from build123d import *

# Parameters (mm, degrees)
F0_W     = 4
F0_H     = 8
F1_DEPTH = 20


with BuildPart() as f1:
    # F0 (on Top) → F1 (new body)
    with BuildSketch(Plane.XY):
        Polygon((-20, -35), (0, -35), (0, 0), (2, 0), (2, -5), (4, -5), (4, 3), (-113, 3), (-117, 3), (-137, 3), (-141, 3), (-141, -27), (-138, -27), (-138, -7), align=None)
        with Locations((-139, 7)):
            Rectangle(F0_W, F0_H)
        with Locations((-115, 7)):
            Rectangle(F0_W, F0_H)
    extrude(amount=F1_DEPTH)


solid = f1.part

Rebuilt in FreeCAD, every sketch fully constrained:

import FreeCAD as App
import Part
import Sketcher

V = App.Vector
Q = App.Units.Quantity

doc = App.newDocument("Part")
body = doc.addObject("PartDesign::Body", "Body")

# Sketch on XY plane
sketch1 = body.newObject("Sketcher::SketchObject", "Sketch")
sketch1.AttachmentSupport = (doc.getObject("XY_Plane"), [""])
sketch1.MapMode = "FlatFace"
sketch1.addGeometry([
    Part.LineSegment(V(-20, -35, 0), V(0, -35, 0)),  # 0
    Part.LineSegment(V(0, -35, 0), V(0, 0, 0)),  # 1
    Part.LineSegment(V(0, 0, 0), V(2, 0, 0)),  # 2
    Part.LineSegment(V(2, 0, 0), V(2, -5, 0)),  # 3
    Part.LineSegment(V(2, -5, 0), V(4, -5, 0)),  # 4
    Part.LineSegment(V(4, -5, 0), V(4, 3, 0)),  # 5
    Part.LineSegment(V(4, 3, 0), V(-113, 3, 0)),  # 6
    Part.LineSegment(V(-113, 3, 0), V(-113, 11, 0)),  # 7
    Part.LineSegment(V(-113, 11, 0), V(-117, 11, 0)),  # 8
    Part.LineSegment(V(-117, 11, 0), V(-117, 3, 0)),  # 9
    Part.LineSegment(V(-117, 3, 0), V(-137, 3, 0)),  # 10
    Part.LineSegment(V(-137, 3, 0), V(-137, 11, 0)),  # 11
    Part.LineSegment(V(-137, 11, 0), V(-141, 11, 0)),  # 12
    Part.LineSegment(V(-141, 11, 0), V(-141, -27, 0)),  # 13
    Part.LineSegment(V(-141, -27, 0), V(-138, -27, 0)),  # 14
    Part.LineSegment(V(-138, -27, 0), V(-138, -7, 0)),  # 15
    Part.LineSegment(V(-138, -7, 0), V(-20, -35, 0)),  # 16
], False)
sketch1.addConstraint([
    Sketcher.Constraint("Coincident", 0, 2, 1, 1),
    Sketcher.Constraint("Coincident", 1, 2, 2, 1),
    Sketcher.Constraint("Coincident", 2, 2, 3, 1),
    Sketcher.Constraint("Coincident", 3, 2, 4, 1),
    Sketcher.Constraint("Coincident", 4, 2, 5, 1),
    Sketcher.Constraint("Coincident", 5, 2, 6, 1),
    Sketcher.Constraint("Coincident", 6, 2, 7, 1),
    Sketcher.Constraint("Coincident", 7, 2, 8, 1),
    Sketcher.Constraint("Coincident", 8, 2, 9, 1),
    Sketcher.Constraint("Coincident", 9, 2, 10, 1),
    Sketcher.Constraint("Coincident", 10, 2, 11, 1),
    Sketcher.Constraint("Coincident", 11, 2, 12, 1),
    Sketcher.Constraint("Coincident", 12, 2, 13, 1),
    Sketcher.Constraint("Coincident", 13, 2, 14, 1),
    Sketcher.Constraint("Coincident", 14, 2, 15, 1),
    Sketcher.Constraint("Coincident", 15, 2, 16, 1),
    Sketcher.Constraint("Coincident", 16, 2, 0, 1),
    Sketcher.Constraint("Horizontal", 0),
    Sketcher.Constraint("Vertical", 1),
    Sketcher.Constraint("Horizontal", 2),
    Sketcher.Constraint("Vertical", 3),
    Sketcher.Constraint("Horizontal", 4),
    Sketcher.Constraint("Vertical", 5),
    Sketcher.Constraint("Horizontal", 6),
    Sketcher.Constraint("Vertical", 7),
    Sketcher.Constraint("Horizontal", 8),
    Sketcher.Constraint("Vertical", 9),
    Sketcher.Constraint("Horizontal", 10),
    Sketcher.Constraint("Vertical", 11),
    Sketcher.Constraint("Horizontal", 12),
    Sketcher.Constraint("Vertical", 13),
    Sketcher.Constraint("Horizontal", 14),
    Sketcher.Constraint("Vertical", 15),
    Sketcher.Constraint("Coincident", 1, 2, -1, 1),
    Sketcher.Constraint("Horizontal", 6, 2, 9, 2),
    Sketcher.Constraint("Horizontal", 8, 2, 11, 2),
    Sketcher.Constraint("Equal", 2, 4),
    Sketcher.Constraint("Equal", 0, 10),
    Sketcher.Constraint("Equal", 8, 12),
    Sketcher.Constraint("Equal", 5, 7),
    Sketcher.Constraint("Equal", 10, 15),
    Sketcher.Constraint("DistanceX", 0, 1, 0, 2, Q("20 mm")),
    Sketcher.Constraint("DistanceX", 2, 1, 2, 2, Q("2 mm")),
    Sketcher.Constraint("DistanceX", 6, 2, 6, 1, Q("117 mm")),
    Sketcher.Constraint("DistanceX", 8, 2, 8, 1, Q("4 mm")),
    Sketcher.Constraint("DistanceX", 14, 1, 14, 2, Q("3 mm")),
    Sketcher.Constraint("DistanceY", 1, 1, 1, 2, Q("35 mm")),
    Sketcher.Constraint("DistanceY", 3, 2, 3, 1, Q("5 mm")),
    Sketcher.Constraint("DistanceY", 5, 1, 5, 2, Q("8 mm")),
    Sketcher.Constraint("DistanceY", 13, 2, 13, 1, Q("38 mm")),
])
pad1 = body.newObject("PartDesign::Pad", "Pad")
pad1.Profile = sketch1
pad1.Length = 20

doc.recompute()
